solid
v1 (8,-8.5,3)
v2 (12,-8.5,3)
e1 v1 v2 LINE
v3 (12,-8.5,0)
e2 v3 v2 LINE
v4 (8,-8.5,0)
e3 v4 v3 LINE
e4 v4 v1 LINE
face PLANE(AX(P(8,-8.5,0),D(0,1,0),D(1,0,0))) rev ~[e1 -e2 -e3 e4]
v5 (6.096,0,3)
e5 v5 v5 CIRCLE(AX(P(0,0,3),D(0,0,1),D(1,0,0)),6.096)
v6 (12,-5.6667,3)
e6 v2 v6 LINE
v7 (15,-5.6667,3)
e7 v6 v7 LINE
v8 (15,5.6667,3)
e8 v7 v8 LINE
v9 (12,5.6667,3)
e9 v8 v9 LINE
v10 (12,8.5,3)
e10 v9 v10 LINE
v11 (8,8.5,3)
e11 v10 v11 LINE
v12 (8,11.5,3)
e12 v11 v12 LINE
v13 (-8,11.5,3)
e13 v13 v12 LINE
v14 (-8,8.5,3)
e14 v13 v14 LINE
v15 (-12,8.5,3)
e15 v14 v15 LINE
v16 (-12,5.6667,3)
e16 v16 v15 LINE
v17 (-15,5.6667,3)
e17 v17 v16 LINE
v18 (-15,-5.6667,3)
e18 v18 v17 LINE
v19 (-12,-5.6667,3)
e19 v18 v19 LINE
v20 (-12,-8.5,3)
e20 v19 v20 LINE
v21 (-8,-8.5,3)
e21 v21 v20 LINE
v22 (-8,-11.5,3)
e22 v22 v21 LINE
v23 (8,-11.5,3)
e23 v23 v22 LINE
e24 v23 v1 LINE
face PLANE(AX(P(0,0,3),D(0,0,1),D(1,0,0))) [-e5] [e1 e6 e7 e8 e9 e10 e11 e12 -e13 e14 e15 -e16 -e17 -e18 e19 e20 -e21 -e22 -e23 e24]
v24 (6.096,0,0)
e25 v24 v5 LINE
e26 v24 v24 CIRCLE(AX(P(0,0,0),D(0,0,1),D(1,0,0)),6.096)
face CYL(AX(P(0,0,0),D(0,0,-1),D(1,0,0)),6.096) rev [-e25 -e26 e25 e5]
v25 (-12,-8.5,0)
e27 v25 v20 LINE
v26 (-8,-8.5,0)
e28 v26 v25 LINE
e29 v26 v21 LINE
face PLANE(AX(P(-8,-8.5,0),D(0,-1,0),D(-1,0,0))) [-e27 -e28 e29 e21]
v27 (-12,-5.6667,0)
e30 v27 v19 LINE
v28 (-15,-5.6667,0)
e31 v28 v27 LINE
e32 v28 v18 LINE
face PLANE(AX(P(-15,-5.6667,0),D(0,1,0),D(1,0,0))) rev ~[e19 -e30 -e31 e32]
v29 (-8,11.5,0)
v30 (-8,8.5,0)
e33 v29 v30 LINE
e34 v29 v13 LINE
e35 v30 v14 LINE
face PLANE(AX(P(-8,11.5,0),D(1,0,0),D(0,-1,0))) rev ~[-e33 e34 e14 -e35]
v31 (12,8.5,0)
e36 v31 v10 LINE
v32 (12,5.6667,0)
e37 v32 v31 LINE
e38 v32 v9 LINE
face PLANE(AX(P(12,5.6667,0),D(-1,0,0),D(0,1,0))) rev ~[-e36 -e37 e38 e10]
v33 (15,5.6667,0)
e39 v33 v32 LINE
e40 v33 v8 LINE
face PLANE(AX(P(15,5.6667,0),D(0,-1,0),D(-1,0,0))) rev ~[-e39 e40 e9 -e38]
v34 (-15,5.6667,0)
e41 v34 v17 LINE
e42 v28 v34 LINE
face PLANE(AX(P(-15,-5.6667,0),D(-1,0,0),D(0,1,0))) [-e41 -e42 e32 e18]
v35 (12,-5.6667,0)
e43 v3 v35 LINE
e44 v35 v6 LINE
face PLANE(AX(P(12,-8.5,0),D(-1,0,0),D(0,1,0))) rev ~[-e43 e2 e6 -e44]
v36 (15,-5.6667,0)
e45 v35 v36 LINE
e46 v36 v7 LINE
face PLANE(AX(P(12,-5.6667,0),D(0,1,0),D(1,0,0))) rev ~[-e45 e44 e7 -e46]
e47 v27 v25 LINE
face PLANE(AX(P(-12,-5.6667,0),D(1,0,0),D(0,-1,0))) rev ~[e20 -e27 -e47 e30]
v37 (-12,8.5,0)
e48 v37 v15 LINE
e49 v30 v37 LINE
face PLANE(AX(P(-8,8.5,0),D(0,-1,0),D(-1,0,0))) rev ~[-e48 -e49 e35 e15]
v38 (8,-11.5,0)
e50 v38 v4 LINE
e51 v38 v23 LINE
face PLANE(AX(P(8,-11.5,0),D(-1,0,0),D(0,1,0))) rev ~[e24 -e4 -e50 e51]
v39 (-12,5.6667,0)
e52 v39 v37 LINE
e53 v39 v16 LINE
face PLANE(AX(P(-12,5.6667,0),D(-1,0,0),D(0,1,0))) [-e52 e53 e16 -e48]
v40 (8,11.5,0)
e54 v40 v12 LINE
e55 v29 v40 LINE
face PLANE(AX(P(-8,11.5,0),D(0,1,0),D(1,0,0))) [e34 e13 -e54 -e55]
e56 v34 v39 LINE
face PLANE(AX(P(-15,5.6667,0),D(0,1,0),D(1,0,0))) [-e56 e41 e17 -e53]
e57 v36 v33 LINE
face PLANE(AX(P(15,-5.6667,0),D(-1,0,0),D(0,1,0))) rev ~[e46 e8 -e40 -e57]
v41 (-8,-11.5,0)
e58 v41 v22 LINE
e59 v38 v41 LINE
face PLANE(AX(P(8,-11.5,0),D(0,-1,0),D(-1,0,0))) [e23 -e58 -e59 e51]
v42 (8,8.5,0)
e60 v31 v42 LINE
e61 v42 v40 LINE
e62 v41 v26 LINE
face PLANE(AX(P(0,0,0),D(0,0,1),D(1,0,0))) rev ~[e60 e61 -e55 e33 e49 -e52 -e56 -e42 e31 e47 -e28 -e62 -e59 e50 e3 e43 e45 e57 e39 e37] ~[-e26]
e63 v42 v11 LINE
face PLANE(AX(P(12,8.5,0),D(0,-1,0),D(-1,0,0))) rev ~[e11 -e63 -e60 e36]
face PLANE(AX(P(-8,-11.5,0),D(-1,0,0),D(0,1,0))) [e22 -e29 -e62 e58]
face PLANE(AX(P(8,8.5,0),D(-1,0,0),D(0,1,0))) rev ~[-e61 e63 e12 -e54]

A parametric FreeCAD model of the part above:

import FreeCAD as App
import Part
import Sketcher
from FreeCAD import Vector
Q = App.Units.Quantity


def add_polygon(sketch, points):
    """Adds a closed chain of lines whose ends are joined by coincident constraints."""
    first, n = sketch.GeometryCount, len(points)
    for a, b in zip(points, points[1:] + points[:1]):
        sketch.addGeometry(Part.LineSegment(App.Vector(*a, 0), App.Vector(*b, 0)), False)
    for i in range(n):
        sketch.addConstraint(Sketcher.Constraint("Coincident", first + i, 2, first + (i + 1) % n, 1))

doc = App.newDocument("Part")
body = doc.addObject("PartDesign::Body", "Body")

# Sketch on XY plane
sketch1 = body.newObject("Sketcher::SketchObject", "Sketch")
sketch1.AttachmentSupport = (doc.getObject("XY_Plane"), [""])
sketch1.MapMode = "FlatFace"
add_polygon(sketch1, [(15, -5.7), (15, 5.7), (12, 5.7), (12, 8.5), (8, 8.5), (8, 11.5), (-8, 11.5), (-8, 8.5), (-12, 8.5), (-12, 5.7), (-15, 5.7), (-15, -5.7), (-12, -5.7), (-12, -8.5), (-8, -8.5), (-8, -11.5), (8, -11.5), (8, -8.5), (12, -8.5), (12, -5.7)])  # lines 0-19
sketch1.addGeometry(Part.Circle(Vector(0, 0, 0), Vector(0, 0, 1), 6.1), False)  # 20
sketch1.addConstraint([
    Sketcher.Constraint("Vertical", 0),
    Sketcher.Constraint("Horizontal", 1),
    Sketcher.Constraint("Vertical", 2),
    Sketcher.Constraint("Horizontal", 3),
    Sketcher.Constraint("Vertical", 4),
    Sketcher.Constraint("Horizontal", 5),
    Sketcher.Constraint("Vertical", 6),
    Sketcher.Constraint("Horizontal", 7),
    Sketcher.Constraint("Vertical", 8),
    Sketcher.Constraint("Horizontal", 9),
    Sketcher.Constraint("Vertical", 10),
    Sketcher.Constraint("Horizontal", 11),
    Sketcher.Constraint("Vertical", 12),
    Sketcher.Constraint("Horizontal", 13),
    Sketcher.Constraint("Vertical", 14),
    Sketcher.Constraint("Horizontal", 15),
    Sketcher.Constraint("Vertical", 16),
    Sketcher.Constraint("Horizontal", 17),
    Sketcher.Constraint("Vertical", 18),
    Sketcher.Constraint("Horizontal", 19),
    Sketcher.Constraint("Coincident", 20, 3, -1, 1),
    Sketcher.Constraint("Symmetric", 0, 2, 10, 2, -1, 1),
    Sketcher.Constraint("Symmetric", 2, 2, 12, 2, -1, 1),
    Sketcher.Constraint("Symmetric", 4, 2, 14, 2, -1, 1),
    Sketcher.Constraint("Symmetric", 6, 2, 16, 2, -1, 1),
    Sketcher.Constraint("Symmetric", 8, 2, 18, 2, -1, 1),
    Sketcher.Constraint("Symmetric", 3, 2, 6, 2, -2),
    Sketcher.Constraint("Symmetric", 1, 2, 8, 2, -2),
    Sketcher.Constraint("Equal", 19, 4),
    Sketcher.Constraint("DistanceX", 1, 2, 1, 1, Q("3 mm")),
    Sketcher.Constraint("DistanceX", 5, 2, 5, 1, Q("16 mm")),
    Sketcher.Constraint("Diameter", 20, Q("12.192 mm")),
    Sketcher.Constraint("DistanceX", 3, 2, 3, 1, Q("4 mm")),
    Sketcher.Constraint("DistanceY", 0, 1, 0, 2, Q("11.3334 mm")),
    Sketcher.Constraint("DistanceY", -1, 1, 2, 2, Q("8.5 mm")),
])
pad1 = body.newObject("PartDesign::Pad", "Pad")
pad1.Profile = sketch1
pad1.Length = 3

doc.recompute()
